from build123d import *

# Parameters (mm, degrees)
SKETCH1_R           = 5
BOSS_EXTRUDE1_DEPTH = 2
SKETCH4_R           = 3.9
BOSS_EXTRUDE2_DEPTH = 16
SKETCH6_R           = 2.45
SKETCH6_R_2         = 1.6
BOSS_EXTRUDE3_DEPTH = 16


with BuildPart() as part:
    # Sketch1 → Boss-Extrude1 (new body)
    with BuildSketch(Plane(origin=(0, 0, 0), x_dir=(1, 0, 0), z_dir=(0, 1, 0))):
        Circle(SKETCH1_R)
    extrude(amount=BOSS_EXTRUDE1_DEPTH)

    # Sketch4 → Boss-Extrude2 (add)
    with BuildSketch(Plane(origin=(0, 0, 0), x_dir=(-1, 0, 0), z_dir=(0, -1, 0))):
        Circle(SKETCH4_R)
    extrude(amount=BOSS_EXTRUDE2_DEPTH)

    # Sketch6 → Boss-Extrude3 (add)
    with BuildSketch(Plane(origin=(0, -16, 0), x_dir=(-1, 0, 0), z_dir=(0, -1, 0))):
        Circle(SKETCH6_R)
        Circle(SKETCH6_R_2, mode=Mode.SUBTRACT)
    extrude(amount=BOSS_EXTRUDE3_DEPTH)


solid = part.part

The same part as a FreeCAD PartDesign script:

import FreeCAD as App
import Part
import Sketcher
Q = App.Units.Quantity

doc = App.newDocument("Part")
body = doc.addObject("PartDesign::Body", "Body")

# Sketch on XZ plane
sketch1 = body.newObject("Sketcher::SketchObject", "Sketch")
sketch1.AttachmentSupport = (doc.getObject("XZ_Plane"), [""])
sketch1.MapMode = "FlatFace"
sketch1.addGeometry(Part.Circle(App.Vector(0, 0, 0), App.Vector(0, 0, 1), 5), False)
sketch1.addConstraint(Sketcher.Constraint("Coincident", 0, 3, -1, 1))
sketch1.addConstraint(Sketcher.Constraint("Diameter", 0, Q("10 mm")))
pad1 = body.newObject("PartDesign::Pad", "Pad")
pad1.Profile = sketch1
pad1.Length = 2
pad1.Reversed = True

# Sketch on XZ plane
sketch2 = body.newObject("Sketcher::SketchObject", "Sketch001")
sketch2.AttachmentSupport = (doc.getObject("XZ_Plane"), [""])
sketch2.MapMode = "FlatFace"
sketch2.addGeometry(Part.Circle(App.Vector(0, 0, 0), App.Vector(0, 0, 1), 3.9), False)
sketch2.addConstraint(Sketcher.Constraint("Coincident", 0, 3, -1, 1))
sketch2.addConstraint(Sketcher.Constraint("Diameter", 0, Q("7.8 mm")))
pad2 = body.newObject("PartDesign::Pad", "Pad001")
pad2.Profile = sketch2
pad2.Length = 16

# Sketch on XZ plane
sketch3 = body.newObject("Sketcher::SketchObject", "Sketch002")
sketch3.AttachmentSupport = (doc.getObject("XZ_Plane"), [""])
sketch3.MapMode = "FlatFace"
sketch3.AttachmentOffset = App.Placement(App.Vector(0, 0, 16), App.Rotation())
sketch3.addGeometry(Part.Circle(App.Vector(0, 0, 0), App.Vector(0, 0, 1), 2.5), False)
sketch3.addGeometry(Part.Circle(App.Vector(0, 0, 0), App.Vector(0, 0, 1), 1.6), False)
sketch3.addConstraint(Sketcher.Constraint("Coincident", 0, 3, -1, 1))
sketch3.addConstraint(Sketcher.Constraint("Coincident", 1, 3, -1, 1))
sketch3.addConstraint(Sketcher.Constraint("Diameter", 0, Q("4.9 mm")))
sketch3.addConstraint(Sketcher.Constraint("Diameter", 1, Q("3.2 mm")))
pad3 = body.newObject("PartDesign::Pad", "Pad002")
pad3.Profile = sketch3
pad3.Length = 16

doc.recompute()
